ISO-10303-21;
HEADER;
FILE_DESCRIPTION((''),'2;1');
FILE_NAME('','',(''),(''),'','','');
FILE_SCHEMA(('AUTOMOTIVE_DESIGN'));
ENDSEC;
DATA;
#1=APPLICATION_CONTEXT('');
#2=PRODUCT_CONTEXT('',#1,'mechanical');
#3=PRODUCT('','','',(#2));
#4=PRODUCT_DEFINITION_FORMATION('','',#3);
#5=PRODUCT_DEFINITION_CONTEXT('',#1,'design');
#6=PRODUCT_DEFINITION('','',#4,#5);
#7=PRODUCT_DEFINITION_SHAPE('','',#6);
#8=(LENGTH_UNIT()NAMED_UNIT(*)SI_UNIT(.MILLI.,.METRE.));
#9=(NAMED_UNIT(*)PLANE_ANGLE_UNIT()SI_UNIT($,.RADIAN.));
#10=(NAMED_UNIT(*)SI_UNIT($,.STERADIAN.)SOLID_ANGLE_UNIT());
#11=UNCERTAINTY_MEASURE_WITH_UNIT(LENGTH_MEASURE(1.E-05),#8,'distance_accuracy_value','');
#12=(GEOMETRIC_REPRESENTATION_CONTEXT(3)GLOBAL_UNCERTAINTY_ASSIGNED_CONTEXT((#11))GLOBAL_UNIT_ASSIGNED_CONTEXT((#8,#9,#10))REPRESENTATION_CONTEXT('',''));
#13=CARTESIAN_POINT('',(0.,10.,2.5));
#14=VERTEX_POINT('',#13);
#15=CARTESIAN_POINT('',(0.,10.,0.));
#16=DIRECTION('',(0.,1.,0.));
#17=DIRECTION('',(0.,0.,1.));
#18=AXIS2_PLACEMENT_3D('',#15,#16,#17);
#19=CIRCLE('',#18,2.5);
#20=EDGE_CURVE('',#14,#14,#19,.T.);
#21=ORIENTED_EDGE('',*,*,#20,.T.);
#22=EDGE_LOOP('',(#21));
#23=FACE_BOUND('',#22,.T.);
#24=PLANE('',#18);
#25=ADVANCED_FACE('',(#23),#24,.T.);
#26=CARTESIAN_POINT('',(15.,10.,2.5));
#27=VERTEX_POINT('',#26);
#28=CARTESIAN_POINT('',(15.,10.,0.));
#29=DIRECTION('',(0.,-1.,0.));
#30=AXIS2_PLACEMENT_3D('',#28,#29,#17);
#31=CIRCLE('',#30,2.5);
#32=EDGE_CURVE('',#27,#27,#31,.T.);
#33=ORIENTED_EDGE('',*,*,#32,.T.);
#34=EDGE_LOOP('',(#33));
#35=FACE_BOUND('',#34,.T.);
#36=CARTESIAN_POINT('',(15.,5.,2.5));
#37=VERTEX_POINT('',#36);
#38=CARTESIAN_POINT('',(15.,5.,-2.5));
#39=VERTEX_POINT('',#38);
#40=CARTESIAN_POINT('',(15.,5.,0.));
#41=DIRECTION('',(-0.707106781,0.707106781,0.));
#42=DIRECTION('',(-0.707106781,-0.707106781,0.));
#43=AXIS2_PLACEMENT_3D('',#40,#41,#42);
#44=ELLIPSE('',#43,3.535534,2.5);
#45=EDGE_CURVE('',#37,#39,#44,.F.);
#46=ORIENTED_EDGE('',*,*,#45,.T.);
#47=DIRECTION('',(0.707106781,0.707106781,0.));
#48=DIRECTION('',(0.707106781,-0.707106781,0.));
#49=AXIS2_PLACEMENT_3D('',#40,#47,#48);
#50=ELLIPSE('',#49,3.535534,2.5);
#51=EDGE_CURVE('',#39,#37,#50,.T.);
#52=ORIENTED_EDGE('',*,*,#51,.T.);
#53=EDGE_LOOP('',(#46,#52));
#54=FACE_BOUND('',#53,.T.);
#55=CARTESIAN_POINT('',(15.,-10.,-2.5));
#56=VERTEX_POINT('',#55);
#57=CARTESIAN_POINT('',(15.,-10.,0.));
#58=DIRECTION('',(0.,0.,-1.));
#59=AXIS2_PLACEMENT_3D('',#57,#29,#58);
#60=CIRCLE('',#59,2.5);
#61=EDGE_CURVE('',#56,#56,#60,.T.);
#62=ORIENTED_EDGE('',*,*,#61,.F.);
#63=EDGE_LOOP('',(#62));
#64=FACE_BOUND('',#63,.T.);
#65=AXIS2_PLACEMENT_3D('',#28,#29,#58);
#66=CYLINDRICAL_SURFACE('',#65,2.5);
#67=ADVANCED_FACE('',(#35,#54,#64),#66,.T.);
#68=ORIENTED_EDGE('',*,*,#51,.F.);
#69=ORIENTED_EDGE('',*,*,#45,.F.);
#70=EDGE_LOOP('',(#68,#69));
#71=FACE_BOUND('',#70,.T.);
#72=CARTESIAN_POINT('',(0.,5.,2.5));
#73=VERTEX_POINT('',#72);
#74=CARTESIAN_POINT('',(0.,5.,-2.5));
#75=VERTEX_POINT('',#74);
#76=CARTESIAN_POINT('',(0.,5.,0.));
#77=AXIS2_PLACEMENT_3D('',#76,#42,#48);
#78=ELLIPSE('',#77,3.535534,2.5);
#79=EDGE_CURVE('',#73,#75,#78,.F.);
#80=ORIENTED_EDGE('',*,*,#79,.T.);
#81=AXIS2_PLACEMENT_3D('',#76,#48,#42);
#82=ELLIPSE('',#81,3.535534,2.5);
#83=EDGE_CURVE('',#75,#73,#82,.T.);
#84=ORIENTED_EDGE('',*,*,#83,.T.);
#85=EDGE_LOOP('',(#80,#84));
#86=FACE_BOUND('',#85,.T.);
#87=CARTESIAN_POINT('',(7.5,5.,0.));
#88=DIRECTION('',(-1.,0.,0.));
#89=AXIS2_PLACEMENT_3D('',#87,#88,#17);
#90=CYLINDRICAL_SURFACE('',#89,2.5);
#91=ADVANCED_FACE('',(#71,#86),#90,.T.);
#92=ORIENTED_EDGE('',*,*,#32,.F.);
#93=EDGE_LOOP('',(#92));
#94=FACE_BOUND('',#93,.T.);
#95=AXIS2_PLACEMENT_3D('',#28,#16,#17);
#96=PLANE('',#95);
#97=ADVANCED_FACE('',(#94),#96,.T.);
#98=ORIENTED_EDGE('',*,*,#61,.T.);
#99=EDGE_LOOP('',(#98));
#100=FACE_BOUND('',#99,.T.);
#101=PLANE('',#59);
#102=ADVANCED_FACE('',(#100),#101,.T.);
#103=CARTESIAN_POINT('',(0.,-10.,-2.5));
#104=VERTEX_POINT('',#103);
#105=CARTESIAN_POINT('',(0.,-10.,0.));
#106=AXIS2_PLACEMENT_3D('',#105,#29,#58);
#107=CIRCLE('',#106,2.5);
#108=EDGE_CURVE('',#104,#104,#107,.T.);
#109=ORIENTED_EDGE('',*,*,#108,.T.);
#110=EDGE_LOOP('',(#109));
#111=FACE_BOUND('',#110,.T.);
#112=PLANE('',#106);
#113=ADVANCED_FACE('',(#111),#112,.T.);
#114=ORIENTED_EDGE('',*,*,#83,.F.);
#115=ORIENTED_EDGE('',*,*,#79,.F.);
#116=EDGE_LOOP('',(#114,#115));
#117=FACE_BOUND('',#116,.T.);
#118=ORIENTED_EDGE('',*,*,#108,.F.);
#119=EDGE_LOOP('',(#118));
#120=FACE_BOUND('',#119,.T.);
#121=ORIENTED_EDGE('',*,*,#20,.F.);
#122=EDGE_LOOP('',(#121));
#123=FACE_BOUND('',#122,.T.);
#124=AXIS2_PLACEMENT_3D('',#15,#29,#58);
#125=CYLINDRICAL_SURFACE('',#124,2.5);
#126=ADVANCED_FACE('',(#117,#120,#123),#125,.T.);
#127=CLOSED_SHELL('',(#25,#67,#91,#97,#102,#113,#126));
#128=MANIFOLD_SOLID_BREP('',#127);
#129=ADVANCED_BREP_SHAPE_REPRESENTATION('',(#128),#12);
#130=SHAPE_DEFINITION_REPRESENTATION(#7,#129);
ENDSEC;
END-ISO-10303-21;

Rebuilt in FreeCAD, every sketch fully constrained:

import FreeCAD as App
import Part
import Sketcher
from FreeCAD import Vector

doc = App.newDocument("Part")
body = doc.addObject("PartDesign::Body", "Body")

sketch1 = doc.addObject("Sketcher::SketchObject", "Sketch")
body.addObject(sketch1)
sketch1.AttachmentSupport = (doc.XZ_Plane, [""])
sketch1.MapMode = "FlatFace"
sketch1.addGeometry(Part.Circle(Vector(0, 0, 0), Vector(0, 0, 1), 2.5), False)
sketch1.addConstraint([
    Sketcher.Constraint("Coincident", 0, 3, -1, 1),
    Sketcher.Constraint("Diameter", 0, 5.0),
])
pad1 = doc.addObject("PartDesign::Pad", "Pad")
body.addObject(pad1)
pad1.Profile = sketch1
pad1.Length = 10
pad1.Reversed = True

sketch2 = doc.addObject("Sketcher::SketchObject", "Sketch001")
body.addObject(sketch2)
sketch2.AttachmentSupport = (doc.YZ_Plane, [""])
sketch2.MapMode = "FlatFace"
sketch2.addGeometry(Part.Circle(Vector(5, 0, 0), Vector(0, 0, 1), 2.5), False)
sketch2.addConstraint([
    Sketcher.Constraint("PointOnObject", 0, 3, -1),
    Sketcher.Constraint("Diameter", 0, 5.0),
    Sketcher.Constraint("DistanceX", -1, 1, 0, 3, 5.0),
])
pad2 = doc.addObject("PartDesign::Pad", "Pad001")
body.addObject(pad2)
pad2.Profile = sketch2
pad2.Length = 7.5
doc.recompute()

datumplane = doc.addObject("PartDesign::Plane", "DatumPlane")
body.addObject(datumplane)
datumplane.AttachmentSupport = (doc.YZ_Plane, [""])
datumplane.MapMode = "FlatFace"
datumplane.AttachmentOffset = App.Placement(Vector(0, 0, 7.5), App.Rotation())
mirrored = doc.addObject("PartDesign::Mirrored", "Mirrored")
body.addObject(mirrored)
mirrored.Originals = [pad1, pad2]
mirrored.MirrorPlane = (datumplane, [""])
body.Tip = mirrored

sketch3 = doc.addObject("Sketcher::SketchObject", "Sketch002")
body.addObject(sketch3)
sketch3.AttachmentSupport = (doc.XZ_Plane, [""])
sketch3.MapMode = "FlatFace"
sketch3.AttachmentOffset = App.Placement(Vector(0, 0, 10), App.Rotation())
sketch3.addGeometry([
    Part.Circle(Vector(0, 0, 0), Vector(0, 0, 1), 2.5),
    Part.Circle(Vector(15, 0, 0), Vector(0, 0, 1), 2.5),
], False)
sketch3.addConstraint([
    Sketcher.Constraint("Coincident", 0, 3, -1, 1),
    Sketcher.Constraint("Equal", 0, 1),
    Sketcher.Constraint("PointOnObject", 1, 3, -1),
    Sketcher.Constraint("Diameter", 0, 5.0),
    Sketcher.Constraint("DistanceX", -1, 1, 1, 3, 15.0),
])
pad3 = doc.addObject("PartDesign::Pad", "Pad002")
body.addObject(pad3)
pad3.Profile = sketch3
pad3.Length = 10
pad3.Reversed = True

doc.recompute()
